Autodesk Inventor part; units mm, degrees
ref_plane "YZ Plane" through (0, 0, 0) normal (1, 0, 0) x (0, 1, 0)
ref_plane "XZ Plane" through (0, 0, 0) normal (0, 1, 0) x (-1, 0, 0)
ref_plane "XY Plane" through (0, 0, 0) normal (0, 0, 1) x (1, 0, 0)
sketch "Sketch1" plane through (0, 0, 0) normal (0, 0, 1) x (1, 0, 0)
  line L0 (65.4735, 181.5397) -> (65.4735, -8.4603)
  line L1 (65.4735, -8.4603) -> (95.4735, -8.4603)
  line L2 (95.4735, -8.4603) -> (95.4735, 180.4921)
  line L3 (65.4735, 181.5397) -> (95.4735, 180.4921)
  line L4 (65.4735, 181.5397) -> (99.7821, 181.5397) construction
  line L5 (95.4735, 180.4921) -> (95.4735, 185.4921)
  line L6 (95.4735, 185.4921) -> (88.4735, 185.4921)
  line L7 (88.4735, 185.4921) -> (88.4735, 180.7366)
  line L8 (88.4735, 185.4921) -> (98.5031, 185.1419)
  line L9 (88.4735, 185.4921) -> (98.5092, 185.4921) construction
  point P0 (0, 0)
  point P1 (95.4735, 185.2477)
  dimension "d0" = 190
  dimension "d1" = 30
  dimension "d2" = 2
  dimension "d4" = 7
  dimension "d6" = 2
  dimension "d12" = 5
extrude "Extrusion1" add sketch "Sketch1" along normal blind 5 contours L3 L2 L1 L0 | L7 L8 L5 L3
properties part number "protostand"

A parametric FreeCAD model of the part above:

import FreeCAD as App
import Part
import Sketcher

V = App.Vector
Q = App.Units.Quantity

doc = App.newDocument("Part")
body = doc.addObject("PartDesign::Body", "Body")

sketch1 = body.newObject("Sketcher::SketchObject", "Sketch")
sketch1.AttachmentSupport = (doc.getObject("XY_Plane"), [""])
sketch1.MapMode = "FlatFace"
sketch1.addGeometry([
    Part.LineSegment(V(88.5, 180.7, 0), V(65.5, 181.5, 0)),
    Part.LineSegment(V(65.5, 181.5, 0), V(65.5, -8.5, 0)),
    Part.LineSegment(V(65.5, -8.5, 0), V(95.5, -8.5, 0)),
    Part.LineSegment(V(95.5, -8.5, 0), V(95.5, 185.2, 0)),
    Part.LineSegment(V(95.5, 185.2, 0), V(88.5, 185.5, 0)),
    Part.LineSegment(V(88.5, 185.5, 0), V(88.5, 180.7, 0)),
], False)
sketch1.addConstraint([
    Sketcher.Constraint("Coincident", 0, 2, 1, 1),
    Sketcher.Constraint("Coincident", 1, 2, 2, 1),
    Sketcher.Constraint("Coincident", 2, 2, 3, 1),
    Sketcher.Constraint("Coincident", 3, 2, 4, 1),
    Sketcher.Constraint("Coincident", 4, 2, 5, 1),
    Sketcher.Constraint("Coincident", 5, 2, 0, 1),
    Sketcher.Constraint("Vertical", 1),
    Sketcher.Constraint("Horizontal", 2),
    Sketcher.Constraint("Vertical", 3),
    Sketcher.Constraint("Vertical", 5),
    Sketcher.Constraint("Parallel", 0, 4),
    Sketcher.Constraint("DistanceX", 2, 1, 2, 2, 30.0),
    Sketcher.Constraint("DistanceY", 1, 2, 1, 1, 190.0),
    Sketcher.Constraint("DistanceX", 4, 2, 3, 2, 7.0),
    Sketcher.Constraint("Angle", 0, Q("178 deg")),
    Sketcher.Constraint("DistanceY", 3, 1, 3, 2, 193.708),
    Sketcher.Constraint("DistanceY", -1, 1, 4, 2, 185.492),
    Sketcher.Constraint("DistanceX", -1, 1, 0, 2, 65.4735),
])
pad1 = body.newObject("PartDesign::Pad", "Pad")
pad1.Profile = sketch1
pad1.Length = 5

doc.recompute()
